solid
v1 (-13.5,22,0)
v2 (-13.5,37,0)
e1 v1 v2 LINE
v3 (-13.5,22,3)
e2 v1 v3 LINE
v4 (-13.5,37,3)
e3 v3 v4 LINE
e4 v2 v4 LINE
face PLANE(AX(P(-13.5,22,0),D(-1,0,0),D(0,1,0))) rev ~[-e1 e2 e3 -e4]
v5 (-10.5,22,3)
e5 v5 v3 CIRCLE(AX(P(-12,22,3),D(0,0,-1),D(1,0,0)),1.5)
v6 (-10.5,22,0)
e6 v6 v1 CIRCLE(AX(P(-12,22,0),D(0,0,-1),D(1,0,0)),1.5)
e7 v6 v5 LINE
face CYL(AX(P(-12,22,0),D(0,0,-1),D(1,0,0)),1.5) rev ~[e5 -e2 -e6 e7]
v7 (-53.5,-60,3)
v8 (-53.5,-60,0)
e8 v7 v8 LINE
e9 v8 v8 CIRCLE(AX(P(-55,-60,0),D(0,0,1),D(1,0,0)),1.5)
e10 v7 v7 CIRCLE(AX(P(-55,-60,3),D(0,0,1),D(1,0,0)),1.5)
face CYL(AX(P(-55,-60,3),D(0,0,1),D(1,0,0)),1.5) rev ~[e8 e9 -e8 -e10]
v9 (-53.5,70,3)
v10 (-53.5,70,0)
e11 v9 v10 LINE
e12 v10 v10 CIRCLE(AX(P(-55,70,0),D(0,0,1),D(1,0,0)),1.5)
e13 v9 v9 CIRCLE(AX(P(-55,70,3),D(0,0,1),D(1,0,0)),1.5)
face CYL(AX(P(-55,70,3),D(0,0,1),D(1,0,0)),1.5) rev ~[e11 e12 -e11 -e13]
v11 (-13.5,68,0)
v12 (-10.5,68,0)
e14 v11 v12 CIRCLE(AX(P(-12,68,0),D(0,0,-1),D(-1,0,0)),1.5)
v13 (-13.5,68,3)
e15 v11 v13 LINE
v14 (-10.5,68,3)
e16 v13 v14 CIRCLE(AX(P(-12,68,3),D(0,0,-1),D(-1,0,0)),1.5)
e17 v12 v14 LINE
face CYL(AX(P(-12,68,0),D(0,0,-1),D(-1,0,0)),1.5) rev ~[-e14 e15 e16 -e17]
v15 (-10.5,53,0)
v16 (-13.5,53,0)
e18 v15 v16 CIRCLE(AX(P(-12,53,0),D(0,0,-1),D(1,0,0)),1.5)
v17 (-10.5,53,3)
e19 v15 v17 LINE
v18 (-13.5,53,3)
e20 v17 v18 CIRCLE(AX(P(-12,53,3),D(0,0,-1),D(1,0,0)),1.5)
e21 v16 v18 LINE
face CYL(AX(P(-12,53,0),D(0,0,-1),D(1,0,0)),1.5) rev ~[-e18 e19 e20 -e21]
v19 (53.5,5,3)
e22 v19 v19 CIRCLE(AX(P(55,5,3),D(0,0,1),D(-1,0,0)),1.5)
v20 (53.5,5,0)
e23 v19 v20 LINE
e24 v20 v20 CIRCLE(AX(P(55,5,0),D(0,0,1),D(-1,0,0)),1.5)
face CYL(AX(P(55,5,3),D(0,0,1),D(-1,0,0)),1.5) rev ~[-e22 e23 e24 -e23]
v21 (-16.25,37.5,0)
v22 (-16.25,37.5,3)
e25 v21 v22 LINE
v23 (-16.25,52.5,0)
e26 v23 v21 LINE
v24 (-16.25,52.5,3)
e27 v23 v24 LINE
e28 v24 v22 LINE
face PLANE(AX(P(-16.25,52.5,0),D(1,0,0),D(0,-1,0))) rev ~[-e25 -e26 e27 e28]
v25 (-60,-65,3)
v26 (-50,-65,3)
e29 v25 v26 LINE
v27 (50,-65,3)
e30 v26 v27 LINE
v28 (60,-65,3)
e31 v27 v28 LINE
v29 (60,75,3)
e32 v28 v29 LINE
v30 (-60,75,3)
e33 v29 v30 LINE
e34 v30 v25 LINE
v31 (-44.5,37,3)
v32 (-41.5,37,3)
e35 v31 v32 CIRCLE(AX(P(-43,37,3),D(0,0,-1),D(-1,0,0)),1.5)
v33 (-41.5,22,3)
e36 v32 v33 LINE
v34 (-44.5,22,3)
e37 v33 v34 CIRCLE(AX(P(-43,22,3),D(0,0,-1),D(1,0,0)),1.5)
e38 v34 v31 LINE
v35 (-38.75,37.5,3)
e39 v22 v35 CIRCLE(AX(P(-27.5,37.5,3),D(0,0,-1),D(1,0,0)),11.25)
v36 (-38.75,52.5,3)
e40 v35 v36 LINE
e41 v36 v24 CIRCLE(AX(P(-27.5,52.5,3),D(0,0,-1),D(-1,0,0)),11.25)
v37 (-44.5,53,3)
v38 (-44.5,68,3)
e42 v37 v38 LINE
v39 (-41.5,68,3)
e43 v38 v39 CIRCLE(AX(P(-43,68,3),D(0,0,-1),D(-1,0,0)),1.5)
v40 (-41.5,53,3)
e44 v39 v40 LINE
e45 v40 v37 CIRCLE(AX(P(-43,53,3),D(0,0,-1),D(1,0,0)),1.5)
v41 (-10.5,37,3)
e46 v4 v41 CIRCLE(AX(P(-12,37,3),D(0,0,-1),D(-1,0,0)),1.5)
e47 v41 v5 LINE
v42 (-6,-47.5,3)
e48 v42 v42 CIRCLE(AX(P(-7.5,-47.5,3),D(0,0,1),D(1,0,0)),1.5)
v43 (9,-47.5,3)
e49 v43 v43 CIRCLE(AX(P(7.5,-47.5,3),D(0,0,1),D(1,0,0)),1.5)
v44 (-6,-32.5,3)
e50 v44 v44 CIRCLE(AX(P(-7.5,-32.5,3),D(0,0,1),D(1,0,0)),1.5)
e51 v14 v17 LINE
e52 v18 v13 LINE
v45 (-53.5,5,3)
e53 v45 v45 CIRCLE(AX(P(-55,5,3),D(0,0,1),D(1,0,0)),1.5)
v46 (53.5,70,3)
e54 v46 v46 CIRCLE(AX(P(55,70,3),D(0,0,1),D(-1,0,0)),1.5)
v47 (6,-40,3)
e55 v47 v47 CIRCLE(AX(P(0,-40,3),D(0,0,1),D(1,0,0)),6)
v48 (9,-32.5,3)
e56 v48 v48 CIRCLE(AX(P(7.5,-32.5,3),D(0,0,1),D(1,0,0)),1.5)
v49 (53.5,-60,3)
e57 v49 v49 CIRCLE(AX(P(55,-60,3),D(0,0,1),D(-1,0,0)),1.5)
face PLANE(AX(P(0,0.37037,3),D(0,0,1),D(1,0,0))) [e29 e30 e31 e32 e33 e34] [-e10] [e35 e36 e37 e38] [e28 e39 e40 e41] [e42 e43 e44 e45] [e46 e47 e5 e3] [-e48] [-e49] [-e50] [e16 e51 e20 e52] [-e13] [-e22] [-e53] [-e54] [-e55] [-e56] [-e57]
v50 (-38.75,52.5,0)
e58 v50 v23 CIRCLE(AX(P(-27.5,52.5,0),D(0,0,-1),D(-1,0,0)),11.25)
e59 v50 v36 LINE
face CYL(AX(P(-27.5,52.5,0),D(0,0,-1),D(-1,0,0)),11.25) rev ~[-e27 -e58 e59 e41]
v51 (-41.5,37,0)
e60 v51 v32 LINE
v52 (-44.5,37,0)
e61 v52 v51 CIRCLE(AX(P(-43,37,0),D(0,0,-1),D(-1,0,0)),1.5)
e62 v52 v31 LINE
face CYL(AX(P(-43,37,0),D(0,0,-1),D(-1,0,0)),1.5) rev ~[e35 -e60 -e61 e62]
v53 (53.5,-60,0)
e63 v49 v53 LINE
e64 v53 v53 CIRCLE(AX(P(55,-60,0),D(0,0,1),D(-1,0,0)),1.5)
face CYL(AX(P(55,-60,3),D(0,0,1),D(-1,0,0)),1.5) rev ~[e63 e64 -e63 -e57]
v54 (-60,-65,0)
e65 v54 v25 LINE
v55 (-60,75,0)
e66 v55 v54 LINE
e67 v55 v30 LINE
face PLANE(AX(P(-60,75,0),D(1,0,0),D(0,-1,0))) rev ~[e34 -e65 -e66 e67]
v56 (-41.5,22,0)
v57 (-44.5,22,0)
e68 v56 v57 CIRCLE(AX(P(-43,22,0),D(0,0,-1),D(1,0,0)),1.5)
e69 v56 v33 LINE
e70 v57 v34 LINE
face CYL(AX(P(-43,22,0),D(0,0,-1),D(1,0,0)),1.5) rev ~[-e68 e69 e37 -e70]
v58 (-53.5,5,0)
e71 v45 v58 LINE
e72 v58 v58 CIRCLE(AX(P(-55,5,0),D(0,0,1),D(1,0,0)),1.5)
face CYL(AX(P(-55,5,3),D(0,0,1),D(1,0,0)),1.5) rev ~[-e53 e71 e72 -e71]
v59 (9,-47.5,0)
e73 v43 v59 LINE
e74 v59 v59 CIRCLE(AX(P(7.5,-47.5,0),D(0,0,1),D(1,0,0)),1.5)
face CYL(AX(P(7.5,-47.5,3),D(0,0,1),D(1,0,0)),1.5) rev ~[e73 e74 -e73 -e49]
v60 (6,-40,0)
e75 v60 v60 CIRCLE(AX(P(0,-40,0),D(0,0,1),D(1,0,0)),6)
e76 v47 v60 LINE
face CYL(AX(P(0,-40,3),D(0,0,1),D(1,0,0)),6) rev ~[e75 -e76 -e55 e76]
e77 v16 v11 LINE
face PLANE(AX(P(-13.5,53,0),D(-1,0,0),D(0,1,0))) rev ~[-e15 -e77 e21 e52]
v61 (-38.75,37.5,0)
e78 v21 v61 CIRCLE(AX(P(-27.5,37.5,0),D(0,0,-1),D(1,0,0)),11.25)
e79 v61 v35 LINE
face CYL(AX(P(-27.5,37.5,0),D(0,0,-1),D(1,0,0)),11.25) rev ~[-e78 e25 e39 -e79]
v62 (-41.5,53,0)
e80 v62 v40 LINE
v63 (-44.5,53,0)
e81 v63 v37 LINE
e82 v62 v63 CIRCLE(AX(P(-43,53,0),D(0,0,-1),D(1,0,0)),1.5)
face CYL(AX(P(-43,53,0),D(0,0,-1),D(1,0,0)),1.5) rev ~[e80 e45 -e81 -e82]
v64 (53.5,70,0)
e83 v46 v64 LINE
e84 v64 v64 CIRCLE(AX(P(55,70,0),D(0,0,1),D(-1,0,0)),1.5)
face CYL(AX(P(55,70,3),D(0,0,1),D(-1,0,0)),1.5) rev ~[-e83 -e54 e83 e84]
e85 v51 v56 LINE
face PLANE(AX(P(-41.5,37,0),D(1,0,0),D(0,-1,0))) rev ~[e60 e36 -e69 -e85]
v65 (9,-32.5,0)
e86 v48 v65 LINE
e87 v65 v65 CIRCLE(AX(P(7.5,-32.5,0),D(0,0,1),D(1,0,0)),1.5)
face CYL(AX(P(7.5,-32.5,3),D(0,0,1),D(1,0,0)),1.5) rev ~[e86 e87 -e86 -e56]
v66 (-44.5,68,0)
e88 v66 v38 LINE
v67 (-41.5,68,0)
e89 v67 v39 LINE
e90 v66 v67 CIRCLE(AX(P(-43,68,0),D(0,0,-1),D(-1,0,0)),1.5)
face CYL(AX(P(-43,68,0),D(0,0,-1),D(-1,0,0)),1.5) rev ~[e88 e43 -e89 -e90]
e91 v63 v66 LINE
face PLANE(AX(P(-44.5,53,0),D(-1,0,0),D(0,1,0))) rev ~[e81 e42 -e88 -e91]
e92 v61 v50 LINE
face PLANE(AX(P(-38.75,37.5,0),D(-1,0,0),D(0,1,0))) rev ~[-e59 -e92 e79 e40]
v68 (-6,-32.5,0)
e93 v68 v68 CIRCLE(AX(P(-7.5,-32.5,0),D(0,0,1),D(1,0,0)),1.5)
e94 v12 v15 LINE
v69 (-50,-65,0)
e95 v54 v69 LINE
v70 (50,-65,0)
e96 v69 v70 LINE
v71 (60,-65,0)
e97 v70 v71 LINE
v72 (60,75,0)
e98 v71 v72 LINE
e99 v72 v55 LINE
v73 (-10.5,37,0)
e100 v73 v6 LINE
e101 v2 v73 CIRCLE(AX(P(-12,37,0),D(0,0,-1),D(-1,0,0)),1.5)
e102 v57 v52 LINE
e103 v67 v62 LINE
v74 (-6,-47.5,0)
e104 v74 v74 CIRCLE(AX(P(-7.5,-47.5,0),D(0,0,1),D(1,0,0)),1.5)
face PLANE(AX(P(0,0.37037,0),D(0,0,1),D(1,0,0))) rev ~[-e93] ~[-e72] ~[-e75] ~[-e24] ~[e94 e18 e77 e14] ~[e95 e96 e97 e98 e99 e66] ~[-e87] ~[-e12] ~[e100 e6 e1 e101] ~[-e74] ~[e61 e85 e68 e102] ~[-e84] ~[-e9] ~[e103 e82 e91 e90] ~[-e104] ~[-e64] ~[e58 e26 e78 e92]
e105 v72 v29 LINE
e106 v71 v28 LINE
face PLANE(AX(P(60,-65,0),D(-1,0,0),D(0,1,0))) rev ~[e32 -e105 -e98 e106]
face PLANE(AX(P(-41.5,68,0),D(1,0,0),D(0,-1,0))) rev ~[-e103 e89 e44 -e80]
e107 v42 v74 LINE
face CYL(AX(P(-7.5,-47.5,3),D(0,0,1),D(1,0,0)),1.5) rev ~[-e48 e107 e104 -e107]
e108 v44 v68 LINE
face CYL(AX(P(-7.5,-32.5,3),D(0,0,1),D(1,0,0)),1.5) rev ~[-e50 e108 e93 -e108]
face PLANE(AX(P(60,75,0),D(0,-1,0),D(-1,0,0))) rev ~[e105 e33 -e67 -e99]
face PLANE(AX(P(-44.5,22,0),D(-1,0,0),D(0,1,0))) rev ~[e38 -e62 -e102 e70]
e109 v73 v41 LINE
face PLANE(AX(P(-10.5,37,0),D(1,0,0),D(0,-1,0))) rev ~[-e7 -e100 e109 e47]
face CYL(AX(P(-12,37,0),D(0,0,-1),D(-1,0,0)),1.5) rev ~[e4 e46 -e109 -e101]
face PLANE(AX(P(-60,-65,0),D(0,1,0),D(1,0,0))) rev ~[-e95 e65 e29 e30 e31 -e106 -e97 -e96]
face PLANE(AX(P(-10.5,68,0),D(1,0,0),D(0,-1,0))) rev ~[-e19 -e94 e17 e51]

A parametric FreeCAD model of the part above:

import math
import FreeCAD as App
import Part
import Sketcher

V = App.Vector

doc = App.newDocument("Part")
body = doc.addObject("PartDesign::Body", "Body")

# Sketch on XY plane
sketch1 = body.newObject("Sketcher::SketchObject", "Sketch")
sketch1.AttachmentSupport = (doc.getObject("XY_Plane"), [""])
sketch1.MapMode = "FlatFace"
sketch1.addGeometry([
    Part.LineSegment(V(-50, -75, 0), V(50, -75, 0)),  # 0
    Part.LineSegment(V(50, -75, 0), V(50, -65, 0)),  # 1
    Part.LineSegment(V(50, -65, 0), V(60, -65, 0)),  # 2
    Part.LineSegment(V(60, -65, 0), V(60, 75, 0)),  # 3
    Part.LineSegment(V(60, 75, 0), V(-60, 75, 0)),  # 4
    Part.LineSegment(V(-60, 75, 0), V(-60, -65, 0)),  # 5
    Part.LineSegment(V(-60, -65, 0), V(-50, -65, 0)),  # 6
    Part.LineSegment(V(-50, -65, 0), V(-50, -75, 0)),  # 7
    Part.LineSegment(V(-41.5, 37, 0), V(-41.5, 22, 0)),  # 8
    Part.ArcOfCircle(Part.Circle(V(-43, 22, 0), V(0, 0, 1), 1.5), math.radians(180), math.radians(360)),  # 9
    Part.LineSegment(V(-44.5, 22, 0), V(-44.5, 37, 0)),  # 10
    Part.ArcOfCircle(Part.Circle(V(-43, 37, 0), V(0, 0, 1), 1.5), math.radians(0), math.radians(180)),  # 11
    Part.ArcOfCircle(Part.Circle(V(-12, 37, 0), V(0, 0, 1), 1.5), math.radians(0), math.radians(180)),  # 12
    Part.LineSegment(V(-10.5, 37, 0), V(-10.5, 22, 0)),  # 13
    Part.ArcOfCircle(Part.Circle(V(-12, 22, 0), V(0, 0, 1), 1.5), math.radians(180), math.radians(360)),  # 14
    Part.LineSegment(V(-13.5, 22, 0), V(-13.5, 37, 0)),  # 15
    Part.LineSegment(V(-16.25, 52.5, 0), V(-16.25, 37.5, 0)),  # 16
    Part.ArcOfCircle(Part.Circle(V(-27.5, 37.5, 0), V(0, 0, 1), 11.25), math.radians(180), math.radians(360)),  # 17
    Part.LineSegment(V(-38.75, 37.5, 0), V(-38.75, 52.5, 0)),  # 18
    Part.ArcOfCircle(Part.Circle(V(-27.5, 52.5, 0), V(0, 0, 1), 11.25), math.radians(0), math.radians(180)),  # 19
    Part.LineSegment(V(-41.5, 68, 0), V(-41.5, 53, 0)),  # 20
    Part.ArcOfCircle(Part.Circle(V(-43, 53, 0), V(0, 0, 1), 1.5), math.radians(180), math.radians(360)),  # 21
    Part.LineSegment(V(-44.5, 53, 0), V(-44.5, 68, 0)),  # 22
    Part.ArcOfCircle(Part.Circle(V(-43, 68, 0), V(0, 0, 1), 1.5), math.radians(0), math.radians(180)),  # 23
    Part.ArcOfCircle(Part.Circle(V(-12, 68, 0), V(0, 0, 1), 1.5), math.radians(0), math.radians(180)),  # 24
    Part.LineSegment(V(-10.5, 68, 0), V(-10.5, 53, 0)),  # 25
    Part.ArcOfCircle(Part.Circle(V(-12, 53, 0), V(0, 0, 1), 1.5), math.radians(180), math.radians(360)),  # 26
    Part.LineSegment(V(-13.5, 53, 0), V(-13.5, 68, 0)),  # 27
], False)
sketch1.addConstraint([
    Sketcher.Constraint("Coincident", 0, 2, 1, 1),
    Sketcher.Constraint("Coincident", 1, 2, 2, 1),
    Sketcher.Constraint("Coincident", 2, 2, 3, 1),
    Sketcher.Constraint("Coincident", 3, 2, 4, 1),
    Sketcher.Constraint("Coincident", 4, 2, 5, 1),
    Sketcher.Constraint("Coincident", 5, 2, 6, 1),
    Sketcher.Constraint("Coincident", 6, 2, 7, 1),
    Sketcher.Constraint("Coincident", 7, 2, 0, 1),
    Sketcher.Constraint("Tangent", 8, 2, 9, 2),
    Sketcher.Constraint("Tangent", 9, 1, 10, 1),
    Sketcher.Constraint("Tangent", 10, 2, 11, 2),
    Sketcher.Constraint("Tangent", 11, 1, 8, 1),
    Sketcher.Constraint("Tangent", 12, 1, 13, 1),
    Sketcher.Constraint("Tangent", 13, 2, 14, 2),
    Sketcher.Constraint("Tangent", 14, 1, 15, 1),
    Sketcher.Constraint("Tangent", 15, 2, 12, 2),
    Sketcher.Constraint("Tangent", 16, 2, 17, 2),
    Sketcher.Constraint("Tangent", 17, 1, 18, 1),
    Sketcher.Constraint("Tangent", 18, 2, 19, 2),
    Sketcher.Constraint("Tangent", 19, 1, 16, 1),
    Sketcher.Constraint("Tangent", 20, 2, 21, 2),
    Sketcher.Constraint("Tangent", 21, 1, 22, 1),
    Sketcher.Constraint("Tangent", 22, 2, 23, 2),
    Sketcher.Constraint("Tangent", 23, 1, 20, 1),
    Sketcher.Constraint("Tangent", 24, 1, 25, 1),
    Sketcher.Constraint("Tangent", 25, 2, 26, 2),
    Sketcher.Constraint("Tangent", 26, 1, 27, 1),
    Sketcher.Constraint("Tangent", 27, 2, 24, 2),
    Sketcher.Constraint("Horizontal", 0),
    Sketcher.Constraint("Vertical", 1),
    Sketcher.Constraint("Horizontal", 2),
    Sketcher.Constraint("Vertical", 3),
    Sketcher.Constraint("Horizontal", 4),
    Sketcher.Constraint("Vertical", 5),
    Sketcher.Constraint("Horizontal", 6),
    Sketcher.Constraint("Vertical", 7),
    Sketcher.Constraint("Vertical", 8),
    Sketcher.Constraint("Vertical", 10),
    Sketcher.Constraint("Vertical", 13),
    Sketcher.Constraint("Vertical", 15),
    Sketcher.Constraint("Vertical", 16),
    Sketcher.Constraint("Vertical", 18),
    Sketcher.Constraint("Vertical", 20),
    Sketcher.Constraint("Vertical", 22),
    Sketcher.Constraint("Vertical", 25),
    Sketcher.Constraint("Vertical", 27),
    Sketcher.Constraint("Equal", 11, 12),
    Sketcher.Constraint("Equal", 14, 21),
    Sketcher.Constraint("Equal", 23, 24),
    Sketcher.Constraint("Symmetric", 2, 2, 5, 2, -2),
    Sketcher.Constraint("Horizontal", 11, 3, 12, 3),
    Sketcher.Constraint("Horizontal", 9, 3, 14, 3),
    Sketcher.Constraint("Horizontal", 23, 3, 24, 3),
    Sketcher.Constraint("Horizontal", 21, 3, 26, 3),
    Sketcher.Constraint("Vertical", 11, 3, 21, 3),
    Sketcher.Constraint("Vertical", 14, 3, 24, 3),
    Sketcher.Constraint("Equal", 2, 6),
    Sketcher.Constraint("Equal", 6, 1),
    Sketcher.Constraint("Equal", 15, 16),
    Sketcher.Constraint("Equal", 18, 20),
    Sketcher.Constraint("Radius", 9, 1.5),
    Sketcher.Constraint("DistanceX", 0, 1, 0, 2, 100.0),
    Sketcher.Constraint("DistanceX", 2, 1, 2, 2, 10.0),
    Sketcher.Constraint("DistanceY", 3, 1, 3, 2, 140.0),
    Sketcher.Constraint("DistanceY", 8, 2, 8, 1, 15.0),
    Sketcher.Constraint("Radius", 17, 11.25),
    Sketcher.Constraint("DistanceX", 9, 3, -1, 1, 43.0),
    Sketcher.Constraint("DistanceY", -1, 1, 9, 3, 22.0),
    Sketcher.Constraint("DistanceX", 12, 3, -1, 1, 12.0),
    Sketcher.Constraint("DistanceY", -1, 1, 21, 3, 53.0),
    Sketcher.Constraint("DistanceY", 0, 2, -1, 1, 75.0),
    Sketcher.Constraint("DistanceX", 8, 2, 17, 3, 14.0),
    Sketcher.Constraint("DistanceY", -1, 1, 17, 3, 37.5),
])
pad1 = body.newObject("PartDesign::Pad", "Pad")
pad1.Profile = sketch1
pad1.Length = 3

# Sketch on XY plane
sketch2 = body.newObject("Sketcher::SketchObject", "Sketch001")
sketch2.AttachmentSupport = (doc.getObject("XY_Plane"), [""])
sketch2.MapMode = "FlatFace"
sketch2.AttachmentOffset = App.Placement(V(0, 0, 3), App.Rotation())
sketch2.addGeometry([
    Part.Circle(V(45, -70, 0), V(0, 0, 1), 1.5),  # 0
    Part.Circle(V(-55, -60, 0), V(0, 0, 1), 1.5),  # 1
    Part.Circle(V(-55, 5, 0), V(0, 0, 1), 1.5),  # 2
    Part.Circle(V(-55, 70, 0), V(0, 0, 1), 1.5),  # 3
    Part.Circle(V(22.5, -70, 0), V(0, 0, 1), 1.5),  # 4
    Part.Circle(V(0, -70, 0), V(0, 0, 1), 1.5),  # 5
    Part.Circle(V(-22.5, -70, 0), V(0, 0, 1), 1.5),  # 6
    Part.Circle(V(-45, -70, 0), V(0, 0, 1), 1.5),  # 7
    Part.Circle(V(55, -60, 0), V(0, 0, 1), 1.5),  # 8
    Part.Circle(V(55, 5, 0), V(0, 0, 1), 1.5),  # 9
    Part.Circle(V(55, 70, 0), V(0, 0, 1), 1.5),  # 10
], False)
sketch2.addConstraint([
    Sketcher.Constraint("Equal", 0, 1),
    Sketcher.Constraint("Equal", 1, 2),
    Sketcher.Constraint("Equal", 2, 3),
    Sketcher.Constraint("Equal", 3, 4),
    Sketcher.Constraint("Equal", 4, 5),
    Sketcher.Constraint("Equal", 5, 6),
    Sketcher.Constraint("Equal", 6, 7),
    Sketcher.Constraint("Equal", 7, 8),
    Sketcher.Constraint("Equal", 8, 9),
    Sketcher.Constraint("Equal", 9, 10),
    Sketcher.Constraint("Symmetric", 4, 3, 6, 3, -2),
    Sketcher.Constraint("Symmetric", 0, 3, 7, 3, -2),
    Sketcher.Constraint("Symmetric", 1, 3, 8, 3, -2),
    Sketcher.Constraint("Symmetric", 2, 3, 9, 3, -2),
    Sketcher.Constraint("Symmetric", 3, 3, 10, 3, -2),
    Sketcher.Constraint("PointOnObject", 5, 3, -2),
    Sketcher.Constraint("Horizontal", 0, 3, 4, 3),
    Sketcher.Constraint("Horizontal", 4, 3, 5, 3),
    Sketcher.Constraint("Vertical", 1, 3, 2, 3),
    Sketcher.Constraint("Vertical", 2, 3, 3, 3),
    Sketcher.Constraint("Diameter", 0, 3.0),
    Sketcher.Constraint("DistanceX", -1, 1, 0, 3, 45.0),
    Sketcher.Constraint("DistanceY", 0, 3, -1, 1, 70.0),
    Sketcher.Constraint("DistanceX", 1, 3, -1, 1, 55.0),
    Sketcher.Constraint("DistanceY", 1, 3, -1, 1, 60.0),
    Sketcher.Constraint("DistanceY", -1, 1, 2, 3, 5.0),
    Sketcher.Constraint("DistanceY", -1, 1, 3, 3, 70.0),
    Sketcher.Constraint("DistanceX", 6, 3, 4, 3, 45.0),
])
pocket1 = body.newObject("PartDesign::Pocket", "Pocket")
pocket1.Profile = sketch2
pocket1.Length = 3

# Sketch on XY plane
sketch3 = body.newObject("Sketcher::SketchObject", "Sketch002")
sketch3.AttachmentSupport = (doc.getObject("XY_Plane"), [""])
sketch3.MapMode = "FlatFace"
sketch3.AttachmentOffset = App.Placement(V(0, 0, 3), App.Rotation())
sketch3.addGeometry([
    Part.Circle(V(0, -40, 0), V(0, 0, 1), 6),  # 0
    Part.Circle(V(-7.5, -32.5, 0), V(0, 0, 1), 1.5),  # 1
    Part.Circle(V(7.5, -32.5, 0), V(0, 0, 1), 1.5),  # 2
    Part.Circle(V(7.5, -47.5, 0), V(0, 0, 1), 1.5),  # 3
    Part.Circle(V(-7.5, -47.5, 0), V(0, 0, 1), 1.5),  # 4
], False)
sketch3.addConstraint([
    Sketcher.Constraint("Equal", 1, 2),
    Sketcher.Constraint("Equal", 2, 3),
    Sketcher.Constraint("Equal", 3, 4),
    Sketcher.Constraint("Symmetric", 1, 3, 2, 3, -2),
    Sketcher.Constraint("Symmetric", 3, 3, 4, 3, -2),
    Sketcher.Constraint("PointOnObject", 0, 3, -2),
    Sketcher.Constraint("Vertical", 2, 3, 3, 3),
    Sketcher.Constraint("Diameter", 0, 12.0),
    Sketcher.Constraint("Diameter", 1, 3.0),
    Sketcher.Constraint("DistanceY", 0, 3, -1, 1, 40.0),
    Sketcher.Constraint("DistanceX", 1, 3, 2, 3, 15.0),
    Sketcher.Constraint("DistanceY", 3, 3, 2, 3, 15.0),
    Sketcher.Constraint("DistanceY", 1, 3, -1, 1, 32.5),
])
pocket2 = body.newObject("PartDesign::Pocket", "Pocket001")
pocket2.Profile = sketch3
pocket2.Length = 10

# Sketch on XY plane
sketch4 = body.newObject("Sketcher::SketchObject", "Sketch003")
sketch4.AttachmentSupport = (doc.getObject("XY_Plane"), [""])
sketch4.MapMode = "FlatFace"
sketch4.AttachmentOffset = App.Placement(V(0, 0, 3), App.Rotation())
sketch4.addGeometry([
    Part.LineSegment(V(-50, -65, 0), V(-50, -76.457187, 0)),
    Part.LineSegment(V(-50, -76.457187, 0), V(50, -76.457187, 0)),
    Part.LineSegment(V(50, -76.457187, 0), V(50, -65, 0)),
    Part.LineSegment(V(50, -65, 0), V(-50, -65, 0)),
], False)
sketch4.addConstraint([
    Sketcher.Constraint("Coincident", 0, 2, 1, 1),
    Sketcher.Constraint("Coincident", 1, 2, 2, 1),
    Sketcher.Constraint("Coincident", 2, 2, 3, 1),
    Sketcher.Constraint("Coincident", 3, 2, 0, 1),
    Sketcher.Constraint("Vertical", 0),
    Sketcher.Constraint("Horizontal", 1),
    Sketcher.Constraint("Vertical", 2),
    Sketcher.Constraint("Horizontal", 3),
    Sketcher.Constraint("DistanceX", 1, 1, 1, 2, 100.0),
    Sketcher.Constraint("DistanceX", 0, 2, -1, 1, 50.0),
    Sketcher.Constraint("DistanceY", 2, 2, -1, 1, 65.0),
    Sketcher.Constraint("DistanceY", 0, 2, 0, 1, 11.457187),
])
pocket3 = body.newObject("PartDesign::Pocket", "Pocket002")
pocket3.Profile = sketch4
pocket3.Length = 10

doc.recompute()
